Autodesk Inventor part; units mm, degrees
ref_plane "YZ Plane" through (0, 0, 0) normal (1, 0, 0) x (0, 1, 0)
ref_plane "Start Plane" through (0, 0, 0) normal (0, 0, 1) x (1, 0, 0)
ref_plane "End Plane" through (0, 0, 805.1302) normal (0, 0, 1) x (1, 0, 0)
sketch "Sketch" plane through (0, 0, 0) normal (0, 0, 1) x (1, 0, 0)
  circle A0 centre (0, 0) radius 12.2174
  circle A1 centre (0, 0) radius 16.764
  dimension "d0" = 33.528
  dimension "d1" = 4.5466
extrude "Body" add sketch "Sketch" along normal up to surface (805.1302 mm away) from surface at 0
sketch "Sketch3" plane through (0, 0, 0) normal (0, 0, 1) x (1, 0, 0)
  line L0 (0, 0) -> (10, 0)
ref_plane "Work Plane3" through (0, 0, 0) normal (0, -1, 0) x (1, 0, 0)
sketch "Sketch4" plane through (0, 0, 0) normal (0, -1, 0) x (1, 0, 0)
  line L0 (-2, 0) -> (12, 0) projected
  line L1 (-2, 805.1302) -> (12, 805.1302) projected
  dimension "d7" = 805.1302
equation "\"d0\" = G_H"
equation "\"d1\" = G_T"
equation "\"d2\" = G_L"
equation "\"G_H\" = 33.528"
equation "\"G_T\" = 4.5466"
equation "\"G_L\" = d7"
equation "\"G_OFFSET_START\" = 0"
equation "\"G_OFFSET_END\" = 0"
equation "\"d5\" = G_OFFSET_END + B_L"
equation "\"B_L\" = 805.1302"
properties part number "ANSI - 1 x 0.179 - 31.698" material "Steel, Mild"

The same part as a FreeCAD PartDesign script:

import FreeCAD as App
import Part
import Sketcher

V = App.Vector
Q = App.Units.Quantity

doc = App.newDocument("Part")
body = doc.addObject("PartDesign::Body", "Body")

sketch1 = doc.addObject("Sketcher::SketchObject", "Sketch")
body.addObject(sketch1)
sketch1.AttachmentSupport = (doc.XY_Plane, [""])
sketch1.MapMode = "FlatFace"
sketch1.addGeometry([
    Part.Circle(V(0, 0, 0), V(0, 0, 1), 17),
    Part.Circle(V(0, 0, 0), V(0, 0, 1), 12),
], False)
sketch1.addConstraint([
    Sketcher.Constraint("Coincident", 0, 3, -1, 1),
    Sketcher.Constraint("Coincident", 1, 3, -1, 1),
    Sketcher.Constraint("Diameter", 0, Q("1.32 in")),
    Sketcher.Constraint("Diameter", 1, Q("0.962 in")),
])
pad1 = doc.addObject("PartDesign::Pad", "Pad")
body.addObject(pad1)
pad1.Profile = sketch1
pad1.Length = 805.1302

doc.recompute()
